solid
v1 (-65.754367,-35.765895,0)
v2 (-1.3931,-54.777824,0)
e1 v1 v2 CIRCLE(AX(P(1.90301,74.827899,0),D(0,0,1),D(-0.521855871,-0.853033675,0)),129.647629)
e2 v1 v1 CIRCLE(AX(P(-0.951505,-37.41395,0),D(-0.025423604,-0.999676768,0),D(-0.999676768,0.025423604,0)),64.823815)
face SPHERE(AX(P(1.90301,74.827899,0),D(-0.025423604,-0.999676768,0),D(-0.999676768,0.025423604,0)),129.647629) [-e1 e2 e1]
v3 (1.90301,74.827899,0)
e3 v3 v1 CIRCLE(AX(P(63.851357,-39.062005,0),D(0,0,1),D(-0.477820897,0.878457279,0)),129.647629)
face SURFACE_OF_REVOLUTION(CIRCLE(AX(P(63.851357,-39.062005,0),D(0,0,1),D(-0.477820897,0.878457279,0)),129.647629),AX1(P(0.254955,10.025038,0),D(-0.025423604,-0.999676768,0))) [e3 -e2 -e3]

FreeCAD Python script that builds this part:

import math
import FreeCAD as App
import Part
import Sketcher

V = App.Vector
Q = App.Units.Quantity

doc = App.newDocument("Part")
body = doc.addObject("PartDesign::Body", "Body")

# Sketch on XY plane
sketch1 = doc.addObject("Sketcher::SketchObject", "Sketch")
body.addObject(sketch1)
sketch1.AttachmentSupport = (doc.XY_Plane, [""])
sketch1.MapMode = "FlatFace"
sketch1.addGeometry([
    Part.LineSegment(V(-1.3931, -54.777824, 0), V(1.90301, 74.827899, 0)),
    Part.ArcOfCircle(Part.Circle(V(63.851357, -39.062005, 0), V(0, 0, 1), 129.647629), math.radians(118.543178), math.radians(178.543178)),
    Part.ArcOfCircle(Part.Circle(V(1.90301, 74.827899, 0), V(0, 0, 1), 129.647629), math.radians(-121.456822), math.radians(-91.456822)),
], False)
sketch1.addGeometry(Part.LineSegment(V(1.90301, 74.827899, 0), V(-1.3931, -54.777824, 0)), True)  # axis
sketch1.addConstraint([
    Sketcher.Constraint("Coincident", 0, 2, 1, 1),
    Sketcher.Constraint("Coincident", 1, 2, 2, 1),
    Sketcher.Constraint("Coincident", 2, 2, 0, 1),
    Sketcher.Constraint("Coincident", 0, 2, 2, 3),
    Sketcher.Constraint("Coincident", 3, 1, 2, 3),
    Sketcher.Constraint("Coincident", 3, 2, 2, 2),
    Sketcher.Constraint("Equal", 1, 2),
    Sketcher.Constraint("Radius", 1, Q("129.647629 mm")),
    Sketcher.Constraint("DistanceY", -1, 1, 2, 3, Q("74.827899 mm")),
    Sketcher.Constraint("DistanceX", 2, 2, -1, 1, Q("1.3931 mm")),
    Sketcher.Constraint("DistanceX", -1, 1, 2, 3, Q("1.90301 mm")),
    Sketcher.Constraint("DistanceY", 1, 3, 1, 2, Q("3.29611 mm")),
])
revolution = doc.addObject("PartDesign::Revolution", "Revolution")
body.addObject(revolution)
revolution.Profile = sketch1
revolution.ReferenceAxis = (sketch1, ["Axis0"])
revolution.Angle = 360

doc.recompute()
